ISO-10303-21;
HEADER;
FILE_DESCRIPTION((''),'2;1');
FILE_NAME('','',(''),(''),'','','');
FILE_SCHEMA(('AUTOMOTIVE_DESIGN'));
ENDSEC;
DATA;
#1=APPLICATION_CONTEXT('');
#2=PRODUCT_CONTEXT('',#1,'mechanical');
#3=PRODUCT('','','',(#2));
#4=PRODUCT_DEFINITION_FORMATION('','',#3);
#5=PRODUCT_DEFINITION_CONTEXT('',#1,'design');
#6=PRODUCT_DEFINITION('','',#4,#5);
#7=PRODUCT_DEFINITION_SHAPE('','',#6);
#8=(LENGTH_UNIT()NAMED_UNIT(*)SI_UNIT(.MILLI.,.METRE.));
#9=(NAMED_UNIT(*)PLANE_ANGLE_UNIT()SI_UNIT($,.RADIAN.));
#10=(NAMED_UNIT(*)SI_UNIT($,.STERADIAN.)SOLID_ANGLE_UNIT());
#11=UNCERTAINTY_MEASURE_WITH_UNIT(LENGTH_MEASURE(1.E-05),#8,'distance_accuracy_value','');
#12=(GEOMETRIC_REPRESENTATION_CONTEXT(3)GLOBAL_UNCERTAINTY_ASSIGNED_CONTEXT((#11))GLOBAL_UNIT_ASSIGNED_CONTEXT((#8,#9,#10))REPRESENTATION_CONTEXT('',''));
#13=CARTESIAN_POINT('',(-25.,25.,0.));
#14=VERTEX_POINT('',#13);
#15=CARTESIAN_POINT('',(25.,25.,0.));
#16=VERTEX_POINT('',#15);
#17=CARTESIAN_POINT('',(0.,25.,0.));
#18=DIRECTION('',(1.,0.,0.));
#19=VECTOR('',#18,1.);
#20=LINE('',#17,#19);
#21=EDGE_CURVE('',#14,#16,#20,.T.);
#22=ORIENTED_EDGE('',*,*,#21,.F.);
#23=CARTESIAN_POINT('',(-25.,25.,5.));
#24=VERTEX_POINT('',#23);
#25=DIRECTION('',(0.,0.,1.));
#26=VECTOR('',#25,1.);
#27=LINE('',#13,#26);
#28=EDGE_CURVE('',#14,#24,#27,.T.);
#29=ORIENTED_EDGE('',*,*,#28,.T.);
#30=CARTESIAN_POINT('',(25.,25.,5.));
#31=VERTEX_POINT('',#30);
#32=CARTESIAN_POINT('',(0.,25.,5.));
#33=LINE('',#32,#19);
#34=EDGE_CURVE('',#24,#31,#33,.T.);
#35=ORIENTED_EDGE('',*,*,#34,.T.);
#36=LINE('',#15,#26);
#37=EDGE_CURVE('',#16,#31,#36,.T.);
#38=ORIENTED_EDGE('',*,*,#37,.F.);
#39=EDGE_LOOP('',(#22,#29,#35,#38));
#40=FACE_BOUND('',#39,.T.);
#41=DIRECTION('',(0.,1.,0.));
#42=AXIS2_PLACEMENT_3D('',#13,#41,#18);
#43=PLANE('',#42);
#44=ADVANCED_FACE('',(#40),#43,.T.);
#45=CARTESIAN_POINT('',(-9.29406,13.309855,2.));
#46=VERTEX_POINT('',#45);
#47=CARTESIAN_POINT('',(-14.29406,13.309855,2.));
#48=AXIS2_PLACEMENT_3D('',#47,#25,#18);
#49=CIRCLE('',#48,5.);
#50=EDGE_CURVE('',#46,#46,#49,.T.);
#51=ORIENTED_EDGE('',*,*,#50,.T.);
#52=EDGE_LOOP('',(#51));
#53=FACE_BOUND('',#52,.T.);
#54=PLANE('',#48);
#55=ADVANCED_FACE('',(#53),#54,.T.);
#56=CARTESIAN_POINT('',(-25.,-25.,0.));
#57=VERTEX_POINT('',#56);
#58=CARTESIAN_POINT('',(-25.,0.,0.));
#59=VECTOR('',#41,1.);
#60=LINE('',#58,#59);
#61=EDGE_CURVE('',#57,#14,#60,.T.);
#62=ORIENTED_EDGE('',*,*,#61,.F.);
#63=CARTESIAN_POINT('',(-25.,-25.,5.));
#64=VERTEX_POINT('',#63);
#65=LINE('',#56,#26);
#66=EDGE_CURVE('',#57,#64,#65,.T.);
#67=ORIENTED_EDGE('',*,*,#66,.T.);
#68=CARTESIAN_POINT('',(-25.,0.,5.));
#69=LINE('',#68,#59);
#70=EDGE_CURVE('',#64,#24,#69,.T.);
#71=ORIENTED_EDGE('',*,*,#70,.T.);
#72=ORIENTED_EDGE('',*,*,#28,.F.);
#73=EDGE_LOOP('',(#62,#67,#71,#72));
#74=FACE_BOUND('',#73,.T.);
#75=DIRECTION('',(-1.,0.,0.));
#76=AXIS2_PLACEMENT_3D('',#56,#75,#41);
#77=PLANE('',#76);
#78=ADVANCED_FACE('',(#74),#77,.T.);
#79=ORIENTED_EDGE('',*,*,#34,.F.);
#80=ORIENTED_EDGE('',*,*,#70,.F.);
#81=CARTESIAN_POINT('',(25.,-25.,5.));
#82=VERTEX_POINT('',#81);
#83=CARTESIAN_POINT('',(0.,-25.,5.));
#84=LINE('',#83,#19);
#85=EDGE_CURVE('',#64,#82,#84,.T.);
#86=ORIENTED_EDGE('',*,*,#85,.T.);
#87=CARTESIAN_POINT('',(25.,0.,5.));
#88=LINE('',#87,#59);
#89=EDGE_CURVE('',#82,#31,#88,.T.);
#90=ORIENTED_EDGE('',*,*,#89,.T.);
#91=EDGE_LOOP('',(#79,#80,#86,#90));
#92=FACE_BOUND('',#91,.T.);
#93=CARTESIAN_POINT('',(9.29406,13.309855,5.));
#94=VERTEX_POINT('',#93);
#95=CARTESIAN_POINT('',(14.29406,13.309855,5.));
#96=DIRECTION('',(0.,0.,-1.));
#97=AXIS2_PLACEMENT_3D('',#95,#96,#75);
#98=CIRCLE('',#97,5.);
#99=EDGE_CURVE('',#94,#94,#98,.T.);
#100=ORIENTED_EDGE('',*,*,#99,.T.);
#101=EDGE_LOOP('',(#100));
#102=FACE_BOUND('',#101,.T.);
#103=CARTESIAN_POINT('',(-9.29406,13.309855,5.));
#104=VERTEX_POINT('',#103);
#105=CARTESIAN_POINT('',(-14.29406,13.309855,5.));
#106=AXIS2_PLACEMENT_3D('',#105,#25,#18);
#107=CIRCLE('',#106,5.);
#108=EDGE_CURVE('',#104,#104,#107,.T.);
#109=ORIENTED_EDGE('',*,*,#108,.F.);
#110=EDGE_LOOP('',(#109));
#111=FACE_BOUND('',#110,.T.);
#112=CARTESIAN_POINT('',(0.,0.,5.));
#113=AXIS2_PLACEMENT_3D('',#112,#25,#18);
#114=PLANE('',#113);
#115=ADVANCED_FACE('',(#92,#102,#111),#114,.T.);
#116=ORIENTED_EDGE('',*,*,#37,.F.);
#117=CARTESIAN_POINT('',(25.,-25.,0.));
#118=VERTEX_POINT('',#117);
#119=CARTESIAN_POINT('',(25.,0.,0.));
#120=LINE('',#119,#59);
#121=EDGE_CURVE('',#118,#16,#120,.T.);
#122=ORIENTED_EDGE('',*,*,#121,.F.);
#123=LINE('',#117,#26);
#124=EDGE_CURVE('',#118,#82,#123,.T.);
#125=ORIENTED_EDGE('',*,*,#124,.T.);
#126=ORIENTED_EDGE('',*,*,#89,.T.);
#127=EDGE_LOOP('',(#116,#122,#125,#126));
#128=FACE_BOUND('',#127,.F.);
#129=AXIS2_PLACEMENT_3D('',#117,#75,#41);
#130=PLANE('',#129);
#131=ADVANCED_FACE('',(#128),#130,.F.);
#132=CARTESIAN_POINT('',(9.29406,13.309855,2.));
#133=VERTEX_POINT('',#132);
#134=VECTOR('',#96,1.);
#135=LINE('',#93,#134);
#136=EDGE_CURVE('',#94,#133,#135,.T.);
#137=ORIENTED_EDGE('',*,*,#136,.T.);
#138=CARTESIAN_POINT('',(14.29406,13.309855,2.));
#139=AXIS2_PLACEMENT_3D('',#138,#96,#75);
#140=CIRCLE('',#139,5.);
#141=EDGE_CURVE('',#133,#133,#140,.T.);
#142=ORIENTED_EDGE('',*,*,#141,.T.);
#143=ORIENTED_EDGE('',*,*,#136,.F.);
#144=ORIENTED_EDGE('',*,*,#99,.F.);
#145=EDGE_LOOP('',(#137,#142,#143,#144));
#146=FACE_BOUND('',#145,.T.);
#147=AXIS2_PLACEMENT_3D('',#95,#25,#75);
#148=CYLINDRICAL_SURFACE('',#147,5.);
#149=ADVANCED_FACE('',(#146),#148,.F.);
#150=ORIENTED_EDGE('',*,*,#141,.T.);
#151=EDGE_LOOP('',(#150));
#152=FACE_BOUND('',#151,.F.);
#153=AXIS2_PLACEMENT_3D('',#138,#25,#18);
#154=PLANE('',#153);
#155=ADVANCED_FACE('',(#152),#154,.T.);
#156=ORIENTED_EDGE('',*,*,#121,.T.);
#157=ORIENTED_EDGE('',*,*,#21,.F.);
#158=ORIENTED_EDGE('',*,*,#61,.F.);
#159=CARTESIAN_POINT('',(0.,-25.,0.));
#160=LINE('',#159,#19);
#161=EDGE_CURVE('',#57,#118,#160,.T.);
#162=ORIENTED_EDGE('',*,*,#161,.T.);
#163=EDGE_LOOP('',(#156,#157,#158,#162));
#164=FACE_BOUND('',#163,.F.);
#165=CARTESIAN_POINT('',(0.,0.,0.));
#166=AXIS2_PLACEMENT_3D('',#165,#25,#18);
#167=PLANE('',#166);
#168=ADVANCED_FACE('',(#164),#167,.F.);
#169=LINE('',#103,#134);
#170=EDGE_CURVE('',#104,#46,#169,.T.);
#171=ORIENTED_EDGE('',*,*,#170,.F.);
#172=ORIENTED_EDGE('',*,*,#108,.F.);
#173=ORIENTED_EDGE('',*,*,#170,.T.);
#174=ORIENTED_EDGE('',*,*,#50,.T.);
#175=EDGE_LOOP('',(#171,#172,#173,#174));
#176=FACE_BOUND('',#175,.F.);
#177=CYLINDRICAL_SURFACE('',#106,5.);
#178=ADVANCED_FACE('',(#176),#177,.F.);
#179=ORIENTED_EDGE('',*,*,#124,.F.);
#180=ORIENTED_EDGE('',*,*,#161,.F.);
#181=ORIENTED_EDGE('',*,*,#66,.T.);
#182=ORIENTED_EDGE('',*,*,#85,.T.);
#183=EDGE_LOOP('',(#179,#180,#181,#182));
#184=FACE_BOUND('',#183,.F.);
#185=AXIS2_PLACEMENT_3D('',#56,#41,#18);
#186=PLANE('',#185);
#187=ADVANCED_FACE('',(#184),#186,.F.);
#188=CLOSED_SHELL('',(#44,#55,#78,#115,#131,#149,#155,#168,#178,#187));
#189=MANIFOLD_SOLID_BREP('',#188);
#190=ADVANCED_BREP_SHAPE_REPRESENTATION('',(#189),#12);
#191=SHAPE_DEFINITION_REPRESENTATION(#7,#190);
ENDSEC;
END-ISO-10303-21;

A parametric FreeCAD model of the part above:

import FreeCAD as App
import Part
import Sketcher
from FreeCAD import Vector


def add_polygon(sketch, points):
    """Adds a closed chain of lines whose ends are joined by coincident constraints."""
    first, n = sketch.GeometryCount, len(points)
    for a, b in zip(points, points[1:] + points[:1]):
        sketch.addGeometry(Part.LineSegment(App.Vector(*a, 0), App.Vector(*b, 0)), False)
    for i in range(n):
        sketch.addConstraint(Sketcher.Constraint("Coincident", first + i, 2, first + (i + 1) % n, 1))

doc = App.newDocument("Part")
body = doc.addObject("PartDesign::Body", "Body")

sketch1 = body.newObject("Sketcher::SketchObject", "Sketch")
sketch1.AttachmentSupport = (doc.getObject("XY_Plane"), [""])
sketch1.MapMode = "FlatFace"
add_polygon(sketch1, [(-25, 25), (-25, -25), (25, -25), (25, 25)])
sketch1.addConstraint([
    Sketcher.Constraint("Vertical", 0),
    Sketcher.Constraint("Horizontal", 1),
    Sketcher.Constraint("Vertical", 2),
    Sketcher.Constraint("Horizontal", 3),
    Sketcher.Constraint("Symmetric", 0, 2, 2, 2, -1, 1),
    Sketcher.Constraint("Equal", 3, 0),
    Sketcher.Constraint("DistanceX", 1, 1, 1, 2, 50.0),
])
pad1 = body.newObject("PartDesign::Pad", "Pad")
pad1.Profile = sketch1
pad1.Length = 5

sketch2 = body.newObject("Sketcher::SketchObject", "Sketch001")
sketch2.AttachmentSupport = (doc.getObject("XY_Plane"), [""])
sketch2.MapMode = "FlatFace"
sketch2.AttachmentOffset = App.Placement(Vector(0, 0, 5), App.Rotation())
sketch2.addGeometry(Part.Circle(Vector(-14, 13, 0), Vector(0, 0, 1), 5), False)
sketch2.addConstraint([
    Sketcher.Constraint("Diameter", 0, 10.0),
    Sketcher.Constraint("DistanceX", 0, 3, -1, 1, 14.29406),
    Sketcher.Constraint("DistanceY", -1, 1, 0, 3, 13.309855),
])
pocket1 = body.newObject("PartDesign::Pocket", "Pocket")
pocket1.Profile = sketch2
pocket1.Length = 3
doc.recompute()

mirrored = body.newObject("PartDesign::Mirrored", "Mirrored")
mirrored.Originals = [pocket1]
mirrored.MirrorPlane = (doc.getObject("YZ_Plane"), [""])
body.Tip = mirrored

doc.recompute()
